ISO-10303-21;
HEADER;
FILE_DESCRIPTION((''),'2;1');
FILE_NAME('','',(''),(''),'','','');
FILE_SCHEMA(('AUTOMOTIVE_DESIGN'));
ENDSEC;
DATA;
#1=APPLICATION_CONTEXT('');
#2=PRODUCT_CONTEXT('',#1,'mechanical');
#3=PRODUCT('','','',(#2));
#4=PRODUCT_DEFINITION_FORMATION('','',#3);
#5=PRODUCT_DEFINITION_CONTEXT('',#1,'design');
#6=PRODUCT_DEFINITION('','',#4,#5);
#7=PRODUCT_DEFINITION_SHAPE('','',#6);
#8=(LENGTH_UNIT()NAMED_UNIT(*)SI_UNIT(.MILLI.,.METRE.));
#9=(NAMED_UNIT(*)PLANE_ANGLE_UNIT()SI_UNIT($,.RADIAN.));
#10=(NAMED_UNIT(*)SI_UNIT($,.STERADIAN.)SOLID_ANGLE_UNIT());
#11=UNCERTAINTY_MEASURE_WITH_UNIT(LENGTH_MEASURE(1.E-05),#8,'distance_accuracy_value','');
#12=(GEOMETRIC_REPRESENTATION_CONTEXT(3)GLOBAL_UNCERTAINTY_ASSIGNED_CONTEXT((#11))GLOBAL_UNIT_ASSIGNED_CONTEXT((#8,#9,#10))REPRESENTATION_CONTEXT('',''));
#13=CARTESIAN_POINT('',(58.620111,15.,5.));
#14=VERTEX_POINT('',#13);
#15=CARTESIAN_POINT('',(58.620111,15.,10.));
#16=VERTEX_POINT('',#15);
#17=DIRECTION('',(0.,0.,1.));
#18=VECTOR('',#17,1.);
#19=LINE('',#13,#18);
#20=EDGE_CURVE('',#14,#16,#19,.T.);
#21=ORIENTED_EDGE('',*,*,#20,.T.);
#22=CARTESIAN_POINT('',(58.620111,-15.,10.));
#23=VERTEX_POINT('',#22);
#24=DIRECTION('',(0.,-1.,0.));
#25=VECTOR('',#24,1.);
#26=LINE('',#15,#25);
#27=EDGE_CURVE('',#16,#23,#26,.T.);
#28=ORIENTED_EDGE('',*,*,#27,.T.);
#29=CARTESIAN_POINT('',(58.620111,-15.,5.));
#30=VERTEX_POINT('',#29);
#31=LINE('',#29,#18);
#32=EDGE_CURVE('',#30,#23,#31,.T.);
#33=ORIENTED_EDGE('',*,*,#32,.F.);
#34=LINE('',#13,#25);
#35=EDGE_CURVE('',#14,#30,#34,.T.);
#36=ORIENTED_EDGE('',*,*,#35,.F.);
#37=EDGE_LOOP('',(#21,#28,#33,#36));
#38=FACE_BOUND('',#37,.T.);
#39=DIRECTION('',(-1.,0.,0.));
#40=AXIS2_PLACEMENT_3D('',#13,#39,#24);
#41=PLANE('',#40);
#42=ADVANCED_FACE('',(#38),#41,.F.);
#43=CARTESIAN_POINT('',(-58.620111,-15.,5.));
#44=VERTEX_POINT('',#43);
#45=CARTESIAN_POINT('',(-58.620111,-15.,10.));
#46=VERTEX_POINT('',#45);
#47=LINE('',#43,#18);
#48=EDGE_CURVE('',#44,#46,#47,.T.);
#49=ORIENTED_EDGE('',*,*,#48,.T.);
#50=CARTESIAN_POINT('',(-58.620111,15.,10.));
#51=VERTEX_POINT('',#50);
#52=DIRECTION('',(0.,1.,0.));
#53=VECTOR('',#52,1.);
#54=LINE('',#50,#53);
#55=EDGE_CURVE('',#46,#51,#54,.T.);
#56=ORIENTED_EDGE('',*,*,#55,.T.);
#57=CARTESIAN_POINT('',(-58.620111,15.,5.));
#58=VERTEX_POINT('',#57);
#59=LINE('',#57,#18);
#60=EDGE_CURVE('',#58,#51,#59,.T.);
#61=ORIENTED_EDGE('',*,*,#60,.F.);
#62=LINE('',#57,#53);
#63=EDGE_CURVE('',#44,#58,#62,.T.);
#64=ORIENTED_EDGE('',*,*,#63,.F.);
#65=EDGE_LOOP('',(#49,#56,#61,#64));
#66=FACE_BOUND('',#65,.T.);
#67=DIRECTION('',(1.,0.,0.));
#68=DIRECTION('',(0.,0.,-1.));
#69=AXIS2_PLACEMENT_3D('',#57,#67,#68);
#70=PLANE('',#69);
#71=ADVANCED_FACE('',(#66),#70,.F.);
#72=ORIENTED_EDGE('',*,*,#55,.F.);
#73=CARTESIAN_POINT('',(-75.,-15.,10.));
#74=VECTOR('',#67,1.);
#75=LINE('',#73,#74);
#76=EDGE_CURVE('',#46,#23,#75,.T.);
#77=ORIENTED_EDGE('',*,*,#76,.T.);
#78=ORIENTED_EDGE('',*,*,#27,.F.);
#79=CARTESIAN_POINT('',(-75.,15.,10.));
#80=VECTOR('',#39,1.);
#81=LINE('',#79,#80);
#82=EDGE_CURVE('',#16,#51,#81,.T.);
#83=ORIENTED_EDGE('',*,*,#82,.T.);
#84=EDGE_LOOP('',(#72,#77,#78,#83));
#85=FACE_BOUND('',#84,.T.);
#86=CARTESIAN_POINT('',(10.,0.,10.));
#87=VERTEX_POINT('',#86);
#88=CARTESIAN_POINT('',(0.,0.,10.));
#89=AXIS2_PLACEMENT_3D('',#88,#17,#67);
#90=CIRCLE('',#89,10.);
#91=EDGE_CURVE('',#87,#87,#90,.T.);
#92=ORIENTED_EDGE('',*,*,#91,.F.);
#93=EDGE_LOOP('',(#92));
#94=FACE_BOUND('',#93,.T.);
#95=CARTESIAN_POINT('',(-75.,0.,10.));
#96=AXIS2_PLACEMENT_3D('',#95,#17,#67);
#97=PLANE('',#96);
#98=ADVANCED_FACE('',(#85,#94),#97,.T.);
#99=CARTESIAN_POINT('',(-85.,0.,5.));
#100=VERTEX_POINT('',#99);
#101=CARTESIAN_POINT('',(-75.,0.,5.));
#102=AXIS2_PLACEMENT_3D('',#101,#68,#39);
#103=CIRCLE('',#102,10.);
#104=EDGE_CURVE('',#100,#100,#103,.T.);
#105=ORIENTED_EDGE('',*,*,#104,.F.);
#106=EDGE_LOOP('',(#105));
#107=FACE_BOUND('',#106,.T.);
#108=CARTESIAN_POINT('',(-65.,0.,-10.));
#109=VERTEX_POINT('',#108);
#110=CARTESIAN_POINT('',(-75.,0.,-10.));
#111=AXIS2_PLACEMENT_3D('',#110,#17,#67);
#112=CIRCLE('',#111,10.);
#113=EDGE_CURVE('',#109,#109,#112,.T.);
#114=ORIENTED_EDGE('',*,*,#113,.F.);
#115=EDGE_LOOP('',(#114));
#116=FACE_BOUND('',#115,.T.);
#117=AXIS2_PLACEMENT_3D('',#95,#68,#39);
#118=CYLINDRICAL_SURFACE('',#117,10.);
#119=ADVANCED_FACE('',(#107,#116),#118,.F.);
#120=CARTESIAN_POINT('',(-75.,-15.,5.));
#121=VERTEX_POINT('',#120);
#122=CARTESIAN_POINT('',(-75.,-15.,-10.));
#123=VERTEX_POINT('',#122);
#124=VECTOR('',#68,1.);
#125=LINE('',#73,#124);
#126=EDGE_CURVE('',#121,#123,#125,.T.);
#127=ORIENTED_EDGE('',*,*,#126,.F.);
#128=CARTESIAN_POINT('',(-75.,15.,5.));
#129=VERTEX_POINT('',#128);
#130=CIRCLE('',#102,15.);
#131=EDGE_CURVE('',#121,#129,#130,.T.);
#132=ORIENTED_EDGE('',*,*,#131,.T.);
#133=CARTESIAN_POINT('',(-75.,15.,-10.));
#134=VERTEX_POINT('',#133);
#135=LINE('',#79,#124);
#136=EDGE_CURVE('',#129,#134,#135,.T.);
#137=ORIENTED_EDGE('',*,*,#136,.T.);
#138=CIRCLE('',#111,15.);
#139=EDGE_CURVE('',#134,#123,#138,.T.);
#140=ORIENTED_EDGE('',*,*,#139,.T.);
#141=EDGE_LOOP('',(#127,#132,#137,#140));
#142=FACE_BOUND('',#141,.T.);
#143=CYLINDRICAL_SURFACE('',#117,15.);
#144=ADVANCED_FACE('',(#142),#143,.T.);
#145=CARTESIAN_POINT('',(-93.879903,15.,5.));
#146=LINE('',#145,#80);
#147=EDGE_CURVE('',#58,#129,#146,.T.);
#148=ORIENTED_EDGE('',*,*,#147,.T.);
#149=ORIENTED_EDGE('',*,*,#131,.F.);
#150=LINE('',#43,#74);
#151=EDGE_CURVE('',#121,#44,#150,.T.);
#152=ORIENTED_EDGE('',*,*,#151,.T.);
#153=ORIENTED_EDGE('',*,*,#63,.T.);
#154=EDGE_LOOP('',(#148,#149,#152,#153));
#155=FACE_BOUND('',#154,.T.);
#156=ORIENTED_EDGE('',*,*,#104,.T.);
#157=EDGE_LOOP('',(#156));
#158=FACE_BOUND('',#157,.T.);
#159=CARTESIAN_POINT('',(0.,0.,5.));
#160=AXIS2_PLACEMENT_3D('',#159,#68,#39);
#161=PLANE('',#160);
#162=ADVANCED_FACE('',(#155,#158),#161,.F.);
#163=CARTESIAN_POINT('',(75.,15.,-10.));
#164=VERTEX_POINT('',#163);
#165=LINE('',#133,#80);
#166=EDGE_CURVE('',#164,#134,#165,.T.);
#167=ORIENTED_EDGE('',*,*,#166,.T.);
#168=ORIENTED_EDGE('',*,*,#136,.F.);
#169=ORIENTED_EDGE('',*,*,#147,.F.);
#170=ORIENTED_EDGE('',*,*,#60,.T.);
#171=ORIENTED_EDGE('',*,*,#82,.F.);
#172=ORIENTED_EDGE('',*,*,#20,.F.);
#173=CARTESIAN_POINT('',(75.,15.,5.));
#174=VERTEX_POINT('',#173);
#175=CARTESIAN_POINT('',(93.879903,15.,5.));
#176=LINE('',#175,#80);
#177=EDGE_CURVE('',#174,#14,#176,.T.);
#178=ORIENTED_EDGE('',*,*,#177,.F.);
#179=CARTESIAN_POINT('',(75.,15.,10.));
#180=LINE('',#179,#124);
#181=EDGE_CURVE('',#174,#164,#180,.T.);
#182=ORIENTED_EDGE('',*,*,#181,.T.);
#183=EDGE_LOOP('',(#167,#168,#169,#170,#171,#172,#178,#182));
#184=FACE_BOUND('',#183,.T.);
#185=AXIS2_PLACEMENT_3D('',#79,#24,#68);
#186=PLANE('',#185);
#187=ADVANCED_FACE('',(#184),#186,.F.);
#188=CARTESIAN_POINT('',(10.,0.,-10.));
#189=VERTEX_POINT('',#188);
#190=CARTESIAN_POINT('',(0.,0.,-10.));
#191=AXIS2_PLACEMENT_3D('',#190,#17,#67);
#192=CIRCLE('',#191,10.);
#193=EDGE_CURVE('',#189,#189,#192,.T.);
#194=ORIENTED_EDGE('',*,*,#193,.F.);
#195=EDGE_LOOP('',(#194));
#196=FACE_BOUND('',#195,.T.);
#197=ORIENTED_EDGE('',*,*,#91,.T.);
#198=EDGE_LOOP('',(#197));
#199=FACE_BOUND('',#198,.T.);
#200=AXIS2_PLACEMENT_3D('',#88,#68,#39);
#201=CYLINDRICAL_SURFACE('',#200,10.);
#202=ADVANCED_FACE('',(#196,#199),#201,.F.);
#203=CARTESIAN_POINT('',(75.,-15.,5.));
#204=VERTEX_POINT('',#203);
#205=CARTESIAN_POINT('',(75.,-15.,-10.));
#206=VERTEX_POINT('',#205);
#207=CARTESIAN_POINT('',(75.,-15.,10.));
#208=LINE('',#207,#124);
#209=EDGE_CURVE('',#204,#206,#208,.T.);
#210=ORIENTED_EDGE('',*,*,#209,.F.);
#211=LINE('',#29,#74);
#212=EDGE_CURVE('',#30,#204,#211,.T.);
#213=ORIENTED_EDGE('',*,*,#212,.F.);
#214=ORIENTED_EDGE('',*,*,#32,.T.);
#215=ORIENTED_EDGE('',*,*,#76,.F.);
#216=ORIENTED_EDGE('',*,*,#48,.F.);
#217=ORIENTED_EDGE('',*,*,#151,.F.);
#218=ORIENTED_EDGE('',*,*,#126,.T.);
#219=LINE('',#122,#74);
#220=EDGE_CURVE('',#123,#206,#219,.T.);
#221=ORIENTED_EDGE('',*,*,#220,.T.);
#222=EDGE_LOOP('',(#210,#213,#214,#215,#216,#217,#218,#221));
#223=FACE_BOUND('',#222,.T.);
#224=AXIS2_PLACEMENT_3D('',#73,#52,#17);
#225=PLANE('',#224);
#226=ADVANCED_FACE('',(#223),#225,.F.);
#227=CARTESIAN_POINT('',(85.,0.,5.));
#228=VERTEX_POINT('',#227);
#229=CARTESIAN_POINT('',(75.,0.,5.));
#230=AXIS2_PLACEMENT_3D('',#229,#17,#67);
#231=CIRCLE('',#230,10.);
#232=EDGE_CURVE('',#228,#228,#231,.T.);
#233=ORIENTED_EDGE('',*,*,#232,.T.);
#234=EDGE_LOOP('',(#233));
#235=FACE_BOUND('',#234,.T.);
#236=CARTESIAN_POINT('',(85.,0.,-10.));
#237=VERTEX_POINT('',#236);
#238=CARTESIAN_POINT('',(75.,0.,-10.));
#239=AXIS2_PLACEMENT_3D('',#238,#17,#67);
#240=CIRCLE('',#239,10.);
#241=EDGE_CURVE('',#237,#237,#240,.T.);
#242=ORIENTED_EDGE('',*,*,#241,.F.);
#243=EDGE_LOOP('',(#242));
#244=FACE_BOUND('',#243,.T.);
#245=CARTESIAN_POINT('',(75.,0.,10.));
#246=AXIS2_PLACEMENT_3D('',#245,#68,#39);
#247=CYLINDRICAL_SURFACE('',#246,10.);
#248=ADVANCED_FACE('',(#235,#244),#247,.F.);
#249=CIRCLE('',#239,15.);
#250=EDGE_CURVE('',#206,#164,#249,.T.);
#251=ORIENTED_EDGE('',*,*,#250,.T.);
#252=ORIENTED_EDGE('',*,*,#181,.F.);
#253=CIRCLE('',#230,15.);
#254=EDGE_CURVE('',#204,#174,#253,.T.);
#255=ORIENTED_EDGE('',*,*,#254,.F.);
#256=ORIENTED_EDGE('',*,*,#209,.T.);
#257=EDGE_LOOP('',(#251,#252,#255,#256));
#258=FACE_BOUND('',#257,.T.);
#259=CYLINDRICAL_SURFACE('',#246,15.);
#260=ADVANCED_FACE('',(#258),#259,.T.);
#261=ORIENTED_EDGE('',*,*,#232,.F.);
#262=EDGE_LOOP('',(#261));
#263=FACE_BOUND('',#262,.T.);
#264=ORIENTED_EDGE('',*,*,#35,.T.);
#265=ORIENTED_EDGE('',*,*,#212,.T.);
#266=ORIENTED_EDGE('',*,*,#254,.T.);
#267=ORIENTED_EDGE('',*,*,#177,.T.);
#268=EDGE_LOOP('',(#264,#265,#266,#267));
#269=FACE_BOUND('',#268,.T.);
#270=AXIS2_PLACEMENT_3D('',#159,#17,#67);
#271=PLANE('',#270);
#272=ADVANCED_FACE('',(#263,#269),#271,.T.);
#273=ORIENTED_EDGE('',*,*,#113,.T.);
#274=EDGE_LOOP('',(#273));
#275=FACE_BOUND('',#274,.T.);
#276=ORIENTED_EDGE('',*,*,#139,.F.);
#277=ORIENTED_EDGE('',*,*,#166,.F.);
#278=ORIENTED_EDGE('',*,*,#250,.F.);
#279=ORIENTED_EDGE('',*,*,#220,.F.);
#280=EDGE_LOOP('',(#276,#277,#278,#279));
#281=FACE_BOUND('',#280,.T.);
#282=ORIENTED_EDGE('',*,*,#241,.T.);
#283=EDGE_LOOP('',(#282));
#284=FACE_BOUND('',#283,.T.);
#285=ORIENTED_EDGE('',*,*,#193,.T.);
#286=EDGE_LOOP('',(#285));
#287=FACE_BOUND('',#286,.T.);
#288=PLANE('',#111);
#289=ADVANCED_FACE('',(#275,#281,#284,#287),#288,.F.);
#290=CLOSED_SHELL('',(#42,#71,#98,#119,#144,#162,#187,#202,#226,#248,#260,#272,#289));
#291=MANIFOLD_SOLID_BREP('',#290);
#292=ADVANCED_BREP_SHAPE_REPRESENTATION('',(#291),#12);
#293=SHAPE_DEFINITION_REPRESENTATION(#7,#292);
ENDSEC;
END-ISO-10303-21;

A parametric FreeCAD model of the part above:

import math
import FreeCAD as App
import Part
import Sketcher
from FreeCAD import Vector


def add_polygon(sketch, points):
    """Adds a closed chain of lines whose ends are joined by coincident constraints."""
    first, n = sketch.GeometryCount, len(points)
    for a, b in zip(points, points[1:] + points[:1]):
        sketch.addGeometry(Part.LineSegment(App.Vector(*a, 0), App.Vector(*b, 0)), False)
    for i in range(n):
        sketch.addConstraint(Sketcher.Constraint("Coincident", first + i, 2, first + (i + 1) % n, 1))

doc = App.newDocument("Part")
body = doc.addObject("PartDesign::Body", "Body")

# Sketch on XY plane
sketch1 = doc.addObject("Sketcher::SketchObject", "Sketch")
body.addObject(sketch1)
sketch1.AttachmentSupport = (doc.XY_Plane, [""])
sketch1.MapMode = "FlatFace"
sketch1.addGeometry([
    Part.LineSegment(Vector(75, 15, 0), Vector(-75, 15, 0)),  # 0
    Part.ArcOfCircle(Part.Circle(Vector(-75, 0, 0), Vector(0, 0, 1), 15), math.radians(90), math.radians(270)),  # 1
    Part.LineSegment(Vector(-75, -15, 0), Vector(75, -15, 0)),  # 2
    Part.ArcOfCircle(Part.Circle(Vector(75, 0, 0), Vector(0, 0, 1), 15), math.radians(-90), math.radians(90)),  # 3
    Part.Circle(Vector(75, 0, 0), Vector(0, 0, 1), 10),  # 4
    Part.Circle(Vector(0, 0, 0), Vector(0, 0, 1), 10),  # 5
    Part.Circle(Vector(-75, 0, 0), Vector(0, 0, 1), 10),  # 6
], False)
sketch1.addConstraint([
    Sketcher.Constraint("Tangent", 0, 2, 1, 1),
    Sketcher.Constraint("Tangent", 1, 2, 2, 1),
    Sketcher.Constraint("Tangent", 2, 2, 3, 1),
    Sketcher.Constraint("Tangent", 3, 2, 0, 1),
    Sketcher.Constraint("Horizontal", 0),
    Sketcher.Constraint("Horizontal", 2),
    Sketcher.Constraint("Coincident", 5, 3, -1, 1),
    Sketcher.Constraint("Coincident", 4, 3, 3, 3),
    Sketcher.Constraint("Coincident", 6, 3, 1, 3),
    Sketcher.Constraint("Equal", 4, 5),
    Sketcher.Constraint("Equal", 5, 6),
    Sketcher.Constraint("Symmetric", 1, 3, 3, 3, -1, 1),
    Sketcher.Constraint("Diameter", 4, 20.0),
    Sketcher.Constraint("Radius", 1, 15.0),
    Sketcher.Constraint("DistanceX", 0, 2, 0, 1, 150.0),
])
pad1 = doc.addObject("PartDesign::Pad", "Pad")
body.addObject(pad1)
pad1.Profile = sketch1
pad1.Length = 20
pad1.Midplane = True

# Sketch on XY plane
sketch2 = doc.addObject("Sketcher::SketchObject", "Sketch001")
body.addObject(sketch2)
sketch2.AttachmentSupport = (doc.XY_Plane, [""])
sketch2.MapMode = "FlatFace"
sketch2.AttachmentOffset = App.Placement(Vector(0, 0, 10), App.Rotation())
add_polygon(sketch2, [(-93.879903, 15), (-93.879903, -15), (-58.620111, -15), (-58.620111, 15)])  # lines 0-3
add_polygon(sketch2, [(58.620111, 15), (58.620111, -15), (93.879903, -15), (93.879903, 15)])  # lines 4-7
sketch2.addConstraint([
    Sketcher.Constraint("Vertical", 0),
    Sketcher.Constraint("Horizontal", 1),
    Sketcher.Constraint("Vertical", 2),
    Sketcher.Constraint("Horizontal", 3),
    Sketcher.Constraint("Vertical", 4),
    Sketcher.Constraint("Horizontal", 5),
    Sketcher.Constraint("Vertical", 6),
    Sketcher.Constraint("Horizontal", 7),
    Sketcher.Constraint("Symmetric", 2, 2, 4, 2, -1, 1),
    Sketcher.Constraint("Symmetric", 0, 2, 6, 2, -1, 1),
    Sketcher.Constraint("Horizontal", 1, 2, 4, 2),
    Sketcher.Constraint("DistanceY", 0, 2, 0, 1, 30.0),
    Sketcher.Constraint("DistanceX", 1, 1, 1, 2, 35.259792),
    Sketcher.Constraint("DistanceX", 1, 2, -1, 1, 58.620111),
])
pocket1 = doc.addObject("PartDesign::Pocket", "Pocket")
body.addObject(pocket1)
pocket1.Profile = sketch2
pocket1.Length = 5

doc.recompute()
